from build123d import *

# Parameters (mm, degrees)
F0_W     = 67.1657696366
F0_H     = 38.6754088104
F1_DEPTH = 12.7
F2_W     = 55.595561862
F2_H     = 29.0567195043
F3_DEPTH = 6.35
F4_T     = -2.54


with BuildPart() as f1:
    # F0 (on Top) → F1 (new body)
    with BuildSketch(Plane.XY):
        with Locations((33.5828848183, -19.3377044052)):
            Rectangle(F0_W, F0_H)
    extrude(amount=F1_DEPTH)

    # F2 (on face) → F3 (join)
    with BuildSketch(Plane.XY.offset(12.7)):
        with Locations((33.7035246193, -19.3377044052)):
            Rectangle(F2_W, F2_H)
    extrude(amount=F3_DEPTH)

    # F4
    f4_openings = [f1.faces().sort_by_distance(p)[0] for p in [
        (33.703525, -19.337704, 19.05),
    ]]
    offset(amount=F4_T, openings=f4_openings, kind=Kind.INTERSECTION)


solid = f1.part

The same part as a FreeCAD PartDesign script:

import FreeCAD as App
import Part
import Sketcher
Q = App.Units.Quantity


def faces_at(feature, points):
    """Names of the faces that lie closest to the given points."""
    faces = feature.Shape.Faces
    near = lambda p: min(range(len(faces)), key=lambda i: faces[i].distToShape(Part.Vertex(*p))[0])
    return sorted({f"Face{near(p) + 1}" for p in points})


def add_polygon(sketch, points):
    """Adds a closed chain of lines whose ends are joined by coincident constraints."""
    first, n = sketch.GeometryCount, len(points)
    for a, b in zip(points, points[1:] + points[:1]):
        sketch.addGeometry(Part.LineSegment(App.Vector(*a, 0), App.Vector(*b, 0)), False)
    for i in range(n):
        sketch.addConstraint(Sketcher.Constraint("Coincident", first + i, 2, first + (i + 1) % n, 1))

doc = App.newDocument("Part")
body = doc.addObject("PartDesign::Body", "Body")

sketch1 = body.newObject("Sketcher::SketchObject", "Sketch")
sketch1.AttachmentSupport = (doc.getObject("XY_Plane"), [""])
sketch1.MapMode = "FlatFace"
add_polygon(sketch1, [(0, 0), (0, -39), (67, -39), (67, 0)])
sketch1.addConstraint([
    Sketcher.Constraint("Vertical", 0),
    Sketcher.Constraint("Horizontal", 1),
    Sketcher.Constraint("Vertical", 2),
    Sketcher.Constraint("Horizontal", 3),
    Sketcher.Constraint("Coincident", 3, 2, -1, 1),
    Sketcher.Constraint("DistanceX", 1, 1, 1, 2, Q("67.16577 mm")),
    Sketcher.Constraint("DistanceY", 0, 2, 0, 1, Q("38.675409 mm")),
])
pad1 = body.newObject("PartDesign::Pad", "Pad")
pad1.Profile = sketch1
pad1.Length = Q("0.5 in")

sketch2 = body.newObject("Sketcher::SketchObject", "Sketch001")
sketch2.AttachmentSupport = (doc.getObject("XY_Plane"), [""])
sketch2.MapMode = "FlatFace"
sketch2.AttachmentOffset = App.Placement(App.Vector(0, 0, 0.5 * 25.4), App.Rotation())
add_polygon(sketch2, [(6, -5), (6, -34), (62, -34), (62, -5)])
sketch2.addConstraint([
    Sketcher.Constraint("Vertical", 0),
    Sketcher.Constraint("Horizontal", 1),
    Sketcher.Constraint("Vertical", 2),
    Sketcher.Constraint("Horizontal", 3),
    Sketcher.Constraint("DistanceX", 1, 1, 1, 2, Q("55.595562 mm")),
    Sketcher.Constraint("DistanceY", 0, 2, 0, 1, Q("29.05672 mm")),
    Sketcher.Constraint("DistanceX", -1, 1, 0, 2, Q("5.905744 mm")),
    Sketcher.Constraint("DistanceY", 0, 2, -1, 1, Q("33.866064 mm")),
])
pad2 = body.newObject("PartDesign::Pad", "Pad001")
pad2.Profile = sketch2
pad2.Length = Q("0.25 in")
doc.recompute()

thickness = body.newObject("PartDesign::Thickness", "Thickness")
thickness.Base = (pad2, faces_at(pad2, [(33.704, -19.338, 19.05)]))
thickness.Value = Q("0.1 in")
thickness.Reversed = True
thickness.Join = "Intersection"

doc.recompute()
